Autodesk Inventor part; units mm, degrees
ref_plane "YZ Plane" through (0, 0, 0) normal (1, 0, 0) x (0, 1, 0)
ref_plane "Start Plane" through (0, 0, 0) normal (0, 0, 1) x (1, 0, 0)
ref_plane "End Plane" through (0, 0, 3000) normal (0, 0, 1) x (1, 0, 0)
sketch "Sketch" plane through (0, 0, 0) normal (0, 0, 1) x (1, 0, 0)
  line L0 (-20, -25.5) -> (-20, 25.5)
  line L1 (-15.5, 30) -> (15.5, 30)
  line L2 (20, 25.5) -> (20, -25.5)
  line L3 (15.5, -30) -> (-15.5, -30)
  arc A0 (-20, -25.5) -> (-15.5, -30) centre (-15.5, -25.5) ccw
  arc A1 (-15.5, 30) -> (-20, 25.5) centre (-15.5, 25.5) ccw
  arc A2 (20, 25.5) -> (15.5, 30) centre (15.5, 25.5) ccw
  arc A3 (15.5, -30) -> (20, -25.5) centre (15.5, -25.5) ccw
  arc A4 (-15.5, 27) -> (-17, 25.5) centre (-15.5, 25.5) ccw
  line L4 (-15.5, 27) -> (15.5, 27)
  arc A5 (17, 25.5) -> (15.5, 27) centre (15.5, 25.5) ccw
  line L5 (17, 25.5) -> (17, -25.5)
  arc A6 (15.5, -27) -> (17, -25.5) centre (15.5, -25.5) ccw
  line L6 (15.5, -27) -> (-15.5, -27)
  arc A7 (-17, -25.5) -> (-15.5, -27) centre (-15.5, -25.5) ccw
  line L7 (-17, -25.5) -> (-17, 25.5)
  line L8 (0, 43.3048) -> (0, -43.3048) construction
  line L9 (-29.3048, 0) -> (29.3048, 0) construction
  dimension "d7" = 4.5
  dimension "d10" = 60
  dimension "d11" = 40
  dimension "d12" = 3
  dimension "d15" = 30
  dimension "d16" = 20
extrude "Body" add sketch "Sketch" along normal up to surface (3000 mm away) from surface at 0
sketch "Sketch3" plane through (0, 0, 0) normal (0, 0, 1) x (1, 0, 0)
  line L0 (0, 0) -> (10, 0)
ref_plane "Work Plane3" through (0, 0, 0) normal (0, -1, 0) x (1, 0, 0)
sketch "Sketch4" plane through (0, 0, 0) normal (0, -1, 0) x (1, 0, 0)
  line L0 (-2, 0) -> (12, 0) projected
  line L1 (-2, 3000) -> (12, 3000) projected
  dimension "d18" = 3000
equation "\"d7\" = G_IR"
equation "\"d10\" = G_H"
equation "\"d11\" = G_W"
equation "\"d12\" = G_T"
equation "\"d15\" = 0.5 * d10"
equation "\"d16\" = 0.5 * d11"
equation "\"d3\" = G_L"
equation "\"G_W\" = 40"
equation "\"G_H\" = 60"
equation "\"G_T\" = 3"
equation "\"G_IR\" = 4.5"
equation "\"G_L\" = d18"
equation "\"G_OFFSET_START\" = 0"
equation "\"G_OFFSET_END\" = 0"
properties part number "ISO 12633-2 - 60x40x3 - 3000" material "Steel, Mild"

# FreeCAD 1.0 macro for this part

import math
import FreeCAD as App
import Part
import Sketcher
from FreeCAD import Vector
Q = App.Units.Quantity

doc = App.newDocument("Part")
body = doc.addObject("PartDesign::Body", "Body")

sketch1 = doc.addObject("Sketcher::SketchObject", "Sketch")
body.addObject(sketch1)
sketch1.AttachmentSupport = (doc.XY_Plane, [""])
sketch1.MapMode = "FlatFace"
sketch1.addGeometry([
    Part.LineSegment(Vector(-20, 25.5, 0), Vector(-20, -25.5, 0)),
    Part.ArcOfCircle(Part.Circle(Vector(-15.5, -25.5, 0), Vector(0, 0, 1), 4.5), math.radians(180), math.radians(270)),
    Part.LineSegment(Vector(-15.5, -30, 0), Vector(15.5, -30, 0)),
    Part.ArcOfCircle(Part.Circle(Vector(15.5, -25.5, 0), Vector(0, 0, 1), 4.5), math.radians(-90), math.radians(0)),
    Part.LineSegment(Vector(20, -25.5, 0), Vector(20, 25.5, 0)),
    Part.ArcOfCircle(Part.Circle(Vector(15.5, 25.5, 0), Vector(0, 0, 1), 4.5), math.radians(0), math.radians(90)),
    Part.LineSegment(Vector(15.5, 30, 0), Vector(-15.5, 30, 0)),
    Part.ArcOfCircle(Part.Circle(Vector(-15.5, 25.5, 0), Vector(0, 0, 1), 4.5), math.radians(90), math.radians(180)),
    Part.ArcOfCircle(Part.Circle(Vector(-15.5, 25.5, 0), Vector(0, 0, 1), 1.5), math.radians(90), math.radians(180)),
    Part.LineSegment(Vector(-15.5, 27, 0), Vector(15.5, 27, 0)),
    Part.ArcOfCircle(Part.Circle(Vector(15.5, 25.5, 0), Vector(0, 0, 1), 1.5), math.radians(0), math.radians(90)),
    Part.LineSegment(Vector(17, 25.5, 0), Vector(17, -25.5, 0)),
    Part.ArcOfCircle(Part.Circle(Vector(15.5, -25.5, 0), Vector(0, 0, 1), 1.5), math.radians(-90), math.radians(0)),
    Part.LineSegment(Vector(15.5, -27, 0), Vector(-15.5, -27, 0)),
    Part.ArcOfCircle(Part.Circle(Vector(-15.5, -25.5, 0), Vector(0, 0, 1), 1.5), math.radians(180), math.radians(270)),
    Part.LineSegment(Vector(-17, -25.5, 0), Vector(-17, 25.5, 0)),
], False)
sketch1.addConstraint([
    Sketcher.Constraint("Tangent", 0, 2, 1, 1),
    Sketcher.Constraint("Tangent", 1, 2, 2, 1),
    Sketcher.Constraint("Tangent", 2, 2, 3, 1),
    Sketcher.Constraint("Tangent", 3, 2, 4, 1),
    Sketcher.Constraint("Tangent", 4, 2, 5, 1),
    Sketcher.Constraint("Tangent", 5, 2, 6, 1),
    Sketcher.Constraint("Tangent", 6, 2, 7, 1),
    Sketcher.Constraint("Tangent", 7, 2, 0, 1),
    Sketcher.Constraint("Tangent", 8, 1, 9, 1),
    Sketcher.Constraint("Tangent", 9, 2, 10, 2),
    Sketcher.Constraint("Tangent", 10, 1, 11, 1),
    Sketcher.Constraint("Tangent", 11, 2, 12, 2),
    Sketcher.Constraint("Tangent", 12, 1, 13, 1),
    Sketcher.Constraint("Tangent", 13, 2, 14, 2),
    Sketcher.Constraint("Tangent", 14, 1, 15, 1),
    Sketcher.Constraint("Tangent", 15, 2, 8, 2),
    Sketcher.Constraint("Vertical", 0),
    Sketcher.Constraint("Horizontal", 2),
    Sketcher.Constraint("Vertical", 4),
    Sketcher.Constraint("Horizontal", 6),
    Sketcher.Constraint("Horizontal", 9),
    Sketcher.Constraint("Vertical", 11),
    Sketcher.Constraint("Horizontal", 13),
    Sketcher.Constraint("Vertical", 15),
    Sketcher.Constraint("Coincident", 8, 3, 7, 3),
    Sketcher.Constraint("Coincident", 10, 3, 5, 3),
    Sketcher.Constraint("Coincident", 12, 3, 3, 3),
    Sketcher.Constraint("Equal", 1, 3),
    Sketcher.Constraint("Equal", 3, 5),
    Sketcher.Constraint("Equal", 5, 7),
    Sketcher.Constraint("Equal", 12, 14),
    Sketcher.Constraint("Symmetric", 1, 3, 5, 3, -1, 1),
    Sketcher.Constraint("Radius", 1, Q("4.5 mm")),
    Sketcher.Constraint("Radius", 8, Q("1.5 mm")),
    Sketcher.Constraint("DistanceX", 0, 2, -1, 1, Q("20 mm")),
    Sketcher.Constraint("DistanceY", 1, 2, -1, 1, Q("30 mm")),
])
pad1 = doc.addObject("PartDesign::Pad", "Pad")
body.addObject(pad1)
pad1.Profile = sketch1
pad1.Length = 3000

doc.recompute()
